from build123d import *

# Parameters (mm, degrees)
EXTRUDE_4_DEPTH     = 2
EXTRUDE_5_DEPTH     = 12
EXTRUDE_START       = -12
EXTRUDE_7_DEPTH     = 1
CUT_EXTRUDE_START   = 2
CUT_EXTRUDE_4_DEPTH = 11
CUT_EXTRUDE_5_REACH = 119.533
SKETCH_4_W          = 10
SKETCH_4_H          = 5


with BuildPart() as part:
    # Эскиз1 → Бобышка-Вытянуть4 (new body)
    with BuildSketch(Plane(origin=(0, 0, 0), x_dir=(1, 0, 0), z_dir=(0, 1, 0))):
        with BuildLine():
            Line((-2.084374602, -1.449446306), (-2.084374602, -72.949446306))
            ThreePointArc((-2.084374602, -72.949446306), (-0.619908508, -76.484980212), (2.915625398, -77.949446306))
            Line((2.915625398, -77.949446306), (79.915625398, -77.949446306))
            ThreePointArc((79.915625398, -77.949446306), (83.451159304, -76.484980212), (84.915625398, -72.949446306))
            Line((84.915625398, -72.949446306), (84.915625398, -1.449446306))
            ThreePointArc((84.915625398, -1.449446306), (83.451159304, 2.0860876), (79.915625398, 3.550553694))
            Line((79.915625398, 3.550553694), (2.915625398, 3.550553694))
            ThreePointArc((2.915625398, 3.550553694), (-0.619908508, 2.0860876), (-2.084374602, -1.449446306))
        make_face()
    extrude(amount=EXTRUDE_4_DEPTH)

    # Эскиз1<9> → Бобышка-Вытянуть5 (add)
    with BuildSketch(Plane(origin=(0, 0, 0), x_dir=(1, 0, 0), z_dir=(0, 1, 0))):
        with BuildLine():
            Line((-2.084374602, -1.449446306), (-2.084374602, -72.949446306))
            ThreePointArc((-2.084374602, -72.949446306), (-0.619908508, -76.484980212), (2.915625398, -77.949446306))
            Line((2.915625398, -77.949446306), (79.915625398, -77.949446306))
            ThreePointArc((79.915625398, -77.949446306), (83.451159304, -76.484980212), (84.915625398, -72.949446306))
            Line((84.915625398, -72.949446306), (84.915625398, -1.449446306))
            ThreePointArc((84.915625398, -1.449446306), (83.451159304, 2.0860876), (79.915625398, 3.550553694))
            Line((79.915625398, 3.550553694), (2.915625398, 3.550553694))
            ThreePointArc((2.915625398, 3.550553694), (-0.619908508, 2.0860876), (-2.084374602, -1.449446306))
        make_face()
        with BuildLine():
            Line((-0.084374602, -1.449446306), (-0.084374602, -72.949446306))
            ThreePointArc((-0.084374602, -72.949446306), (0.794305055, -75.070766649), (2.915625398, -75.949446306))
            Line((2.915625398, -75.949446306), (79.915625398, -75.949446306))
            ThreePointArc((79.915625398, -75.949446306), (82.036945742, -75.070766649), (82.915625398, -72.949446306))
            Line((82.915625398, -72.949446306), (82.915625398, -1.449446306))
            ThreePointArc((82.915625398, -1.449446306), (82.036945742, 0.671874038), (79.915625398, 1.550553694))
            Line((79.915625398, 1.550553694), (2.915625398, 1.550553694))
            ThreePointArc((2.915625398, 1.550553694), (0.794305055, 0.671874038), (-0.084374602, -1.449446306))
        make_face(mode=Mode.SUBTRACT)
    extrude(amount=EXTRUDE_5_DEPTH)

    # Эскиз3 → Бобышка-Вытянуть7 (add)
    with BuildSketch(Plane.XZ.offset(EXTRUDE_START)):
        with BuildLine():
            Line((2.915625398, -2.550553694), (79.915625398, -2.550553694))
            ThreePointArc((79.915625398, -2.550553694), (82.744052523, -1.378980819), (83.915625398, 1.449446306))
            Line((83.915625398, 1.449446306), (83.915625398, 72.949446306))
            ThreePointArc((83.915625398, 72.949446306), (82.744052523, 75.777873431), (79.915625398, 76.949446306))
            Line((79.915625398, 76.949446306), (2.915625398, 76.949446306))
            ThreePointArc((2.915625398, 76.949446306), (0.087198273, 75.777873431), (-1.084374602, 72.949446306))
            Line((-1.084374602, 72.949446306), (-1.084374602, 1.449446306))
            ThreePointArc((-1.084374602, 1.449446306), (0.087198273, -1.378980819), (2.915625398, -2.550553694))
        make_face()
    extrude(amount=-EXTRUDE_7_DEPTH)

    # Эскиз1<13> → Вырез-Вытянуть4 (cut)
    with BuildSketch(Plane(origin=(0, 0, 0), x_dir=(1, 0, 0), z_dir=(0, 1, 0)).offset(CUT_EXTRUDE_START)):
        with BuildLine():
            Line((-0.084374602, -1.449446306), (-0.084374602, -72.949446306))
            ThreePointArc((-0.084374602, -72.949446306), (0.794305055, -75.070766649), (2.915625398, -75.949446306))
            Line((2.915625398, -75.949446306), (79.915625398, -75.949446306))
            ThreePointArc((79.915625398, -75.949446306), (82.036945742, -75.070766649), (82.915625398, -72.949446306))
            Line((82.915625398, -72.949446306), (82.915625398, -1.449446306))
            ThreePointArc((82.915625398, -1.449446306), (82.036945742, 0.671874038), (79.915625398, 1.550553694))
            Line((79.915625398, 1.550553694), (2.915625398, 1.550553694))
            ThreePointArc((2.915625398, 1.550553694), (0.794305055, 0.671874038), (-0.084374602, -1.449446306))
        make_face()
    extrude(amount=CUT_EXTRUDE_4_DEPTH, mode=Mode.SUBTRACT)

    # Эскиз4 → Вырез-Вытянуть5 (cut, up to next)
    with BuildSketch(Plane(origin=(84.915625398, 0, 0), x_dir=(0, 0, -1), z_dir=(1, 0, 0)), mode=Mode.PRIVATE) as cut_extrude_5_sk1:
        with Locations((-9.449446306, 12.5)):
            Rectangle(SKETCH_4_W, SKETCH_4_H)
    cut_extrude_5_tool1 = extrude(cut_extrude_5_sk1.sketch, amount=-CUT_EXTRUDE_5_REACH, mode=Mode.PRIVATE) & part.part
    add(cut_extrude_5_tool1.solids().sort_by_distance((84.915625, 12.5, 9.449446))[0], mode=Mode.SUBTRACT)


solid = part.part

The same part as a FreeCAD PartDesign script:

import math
import FreeCAD as App
import Part
import Sketcher
from FreeCAD import Vector


def add_polygon(sketch, points):
    """Adds a closed chain of lines whose ends are joined by coincident constraints."""
    first, n = sketch.GeometryCount, len(points)
    for a, b in zip(points, points[1:] + points[:1]):
        sketch.addGeometry(Part.LineSegment(App.Vector(*a, 0), App.Vector(*b, 0)), False)
    for i in range(n):
        sketch.addConstraint(Sketcher.Constraint("Coincident", first + i, 2, first + (i + 1) % n, 1))

doc = App.newDocument("Part")
params = doc.addObject("Spreadsheet::Sheet", "Params")
for row, (alias, value) in enumerate([
    ("sketch1_radius", "5 mm"),
    ("sketch1_width", "77 mm"),
    ("sketch1_height", "71.5 mm"),
    ("pad1_length", "2 mm"),
    ("sketch2_radius", "5 mm"),
    ("sketch2_radius2", "3 mm"),
    ("sketch2_width", "77 mm"),
    ("sketch2_height", "71.5 mm"),
    ("pad2_length", "12 mm"),
    ("sketch3_radius", "4 mm"),
    ("sketch3_width", "77 mm"),
    ("sketch3_height", "71.5 mm"),
    ("pad3_length", "1 mm"),
    ("sketch4_radius", "3 mm"),
    ("sketch4_width", "77 mm"),
    ("sketch4_height", "71.5 mm"),
    ("pocket1_length", "11 mm"),
    ("sketch5_width", "5 mm"),
    ("sketch5_height", "10 mm"),
    ("pocket2_length", "2 mm"),
], start=1):
    params.set(f"A{row}", alias)
    params.set(f"B{row}", "=" + value)
    params.setAlias(f"B{row}", alias)

body = doc.addObject("PartDesign::Body", "Body")

sketch1 = body.newObject("Sketcher::SketchObject", "Sketch")
sketch1.AttachmentSupport = (doc.getObject("XZ_Plane"), [""])
sketch1.MapMode = "FlatFace"
sketch1.addGeometry([
    Part.LineSegment(Vector(-2.084375, 1.449446, 0), Vector(-2.084375, 72.949446, 0)),
    Part.ArcOfCircle(Part.Circle(Vector(2.915625, 72.949446, 0), Vector(0, 0, 1), 5), math.radians(90), math.radians(180)),
    Part.LineSegment(Vector(2.915625, 77.949446, 0), Vector(79.915625, 77.949446, 0)),
    Part.ArcOfCircle(Part.Circle(Vector(79.915625, 72.949446, 0), Vector(0, 0, 1), 5), math.radians(0), math.radians(90)),
    Part.LineSegment(Vector(84.915625, 72.949446, 0), Vector(84.915625, 1.449446, 0)),
    Part.ArcOfCircle(Part.Circle(Vector(79.915625, 1.449446, 0), Vector(0, 0, 1), 5), math.radians(-90), math.radians(0)),
    Part.LineSegment(Vector(79.915625, -3.550554, 0), Vector(2.915625, -3.550554, 0)),
    Part.ArcOfCircle(Part.Circle(Vector(2.915625, 1.449446, 0), Vector(0, 0, 1), 5), math.radians(180), math.radians(270)),
], False)
sketch1.addConstraint([
    Sketcher.Constraint("Tangent", 0, 2, 1, 2),
    Sketcher.Constraint("Tangent", 1, 1, 2, 1),
    Sketcher.Constraint("Tangent", 2, 2, 3, 2),
    Sketcher.Constraint("Tangent", 3, 1, 4, 1),
    Sketcher.Constraint("Tangent", 4, 2, 5, 2),
    Sketcher.Constraint("Tangent", 5, 1, 6, 1),
    Sketcher.Constraint("Tangent", 6, 2, 7, 2),
    Sketcher.Constraint("Tangent", 7, 1, 0, 1),
    Sketcher.Constraint("Vertical", 0),
    Sketcher.Constraint("Horizontal", 2),
    Sketcher.Constraint("Vertical", 4),
    Sketcher.Constraint("Horizontal", 6),
    Sketcher.Constraint("Equal", 1, 3),
    Sketcher.Constraint("Equal", 3, 5),
    Sketcher.Constraint("Equal", 5, 7),
    Sketcher.Constraint("Radius", 1, 5.0),
    Sketcher.Constraint("DistanceX", 2, 1, 2, 2, 77.0),
    Sketcher.Constraint("DistanceY", 0, 1, 0, 2, 71.5),
    Sketcher.Constraint("DistanceX", -1, 1, 1, 3, 2.915625),
    Sketcher.Constraint("DistanceY", -1, 1, 1, 3, 72.949446),
])
sketch1.setExpression("Constraints[15]", "Params.sketch1_radius")
sketch1.setExpression("Constraints[16]", "Params.sketch1_width")
sketch1.setExpression("Constraints[17]", "Params.sketch1_height")
pad1 = body.newObject("PartDesign::Pad", "Pad")
pad1.Profile = sketch1
pad1.setExpression("Length", "Params.pad1_length")
pad1.Reversed = True

sketch2 = body.newObject("Sketcher::SketchObject", "Sketch001")
sketch2.AttachmentSupport = (doc.getObject("XZ_Plane"), [""])
sketch2.MapMode = "FlatFace"
sketch2.addGeometry([
    Part.LineSegment(Vector(-2.084375, 1.449446, 0), Vector(-2.084375, 72.949446, 0)),
    Part.ArcOfCircle(Part.Circle(Vector(2.915625, 72.949446, 0), Vector(0, 0, 1), 5), math.radians(90), math.radians(180)),
    Part.LineSegment(Vector(2.915625, 77.949446, 0), Vector(79.915625, 77.949446, 0)),
    Part.ArcOfCircle(Part.Circle(Vector(79.915625, 72.949446, 0), Vector(0, 0, 1), 5), math.radians(0), math.radians(90)),
    Part.LineSegment(Vector(84.915625, 72.949446, 0), Vector(84.915625, 1.449446, 0)),
    Part.ArcOfCircle(Part.Circle(Vector(79.915625, 1.449446, 0), Vector(0, 0, 1), 5), math.radians(-90), math.radians(0)),
    Part.LineSegment(Vector(79.915625, -3.550554, 0), Vector(2.915625, -3.550554, 0)),
    Part.ArcOfCircle(Part.Circle(Vector(2.915625, 1.449446, 0), Vector(0, 0, 1), 5), math.radians(180), math.radians(270)),
    Part.LineSegment(Vector(-0.084375, 72.949446, 0), Vector(-0.084375, 1.449446, 0)),
    Part.ArcOfCircle(Part.Circle(Vector(2.915625, 1.449446, 0), Vector(0, 0, 1), 3), math.radians(180), math.radians(270)),
    Part.LineSegment(Vector(2.915625, -1.550554, 0), Vector(79.915625, -1.550554, 0)),
    Part.ArcOfCircle(Part.Circle(Vector(79.915625, 1.449446, 0), Vector(0, 0, 1), 3), math.radians(-90), math.radians(0)),
    Part.LineSegment(Vector(82.915625, 1.449446, 0), Vector(82.915625, 72.949446, 0)),
    Part.ArcOfCircle(Part.Circle(Vector(79.915625, 72.949446, 0), Vector(0, 0, 1), 3), math.radians(0), math.radians(90)),
    Part.LineSegment(Vector(79.915625, 75.949446, 0), Vector(2.915625, 75.949446, 0)),
    Part.ArcOfCircle(Part.Circle(Vector(2.915625, 72.949446, 0), Vector(0, 0, 1), 3), math.radians(90), math.radians(180)),
], False)
sketch2.addConstraint([
    Sketcher.Constraint("Tangent", 0, 2, 1, 2),
    Sketcher.Constraint("Tangent", 1, 1, 2, 1),
    Sketcher.Constraint("Tangent", 2, 2, 3, 2),
    Sketcher.Constraint("Tangent", 3, 1, 4, 1),
    Sketcher.Constraint("Tangent", 4, 2, 5, 2),
    Sketcher.Constraint("Tangent", 5, 1, 6, 1),
    Sketcher.Constraint("Tangent", 6, 2, 7, 2),
    Sketcher.Constraint("Tangent", 7, 1, 0, 1),
    Sketcher.Constraint("Tangent", 8, 2, 9, 1),
    Sketcher.Constraint("Tangent", 9, 2, 10, 1),
    Sketcher.Constraint("Tangent", 10, 2, 11, 1),
    Sketcher.Constraint("Tangent", 11, 2, 12, 1),
    Sketcher.Constraint("Tangent", 12, 2, 13, 1),
    Sketcher.Constraint("Tangent", 13, 2, 14, 1),
    Sketcher.Constraint("Tangent", 14, 2, 15, 1),
    Sketcher.Constraint("Tangent", 15, 2, 8, 1),
    Sketcher.Constraint("Vertical", 0),
    Sketcher.Constraint("Horizontal", 2),
    Sketcher.Constraint("Vertical", 4),
    Sketcher.Constraint("Horizontal", 6),
    Sketcher.Constraint("Vertical", 8),
    Sketcher.Constraint("Horizontal", 10),
    Sketcher.Constraint("Vertical", 12),
    Sketcher.Constraint("Horizontal", 14),
    Sketcher.Constraint("Coincident", 9, 3, 7, 3),
    Sketcher.Constraint("Coincident", 11, 3, 5, 3),
    Sketcher.Constraint("Coincident", 13, 3, 3, 3),
    Sketcher.Constraint("Equal", 1, 3),
    Sketcher.Constraint("Equal", 3, 5),
    Sketcher.Constraint("Equal", 5, 7),
    Sketcher.Constraint("Equal", 13, 15),
    Sketcher.Constraint("Radius", 1, 5.0),
    Sketcher.Constraint("Radius", 9, 3.0),
    Sketcher.Constraint("DistanceX", 2, 1, 2, 2, 77.0),
    Sketcher.Constraint("DistanceY", 0, 1, 0, 2, 71.5),
    Sketcher.Constraint("DistanceX", -1, 1, 1, 3, 2.915625),
    Sketcher.Constraint("DistanceY", -1, 1, 1, 3, 72.949446),
])
sketch2.setExpression("Constraints[31]", "Params.sketch2_radius")
sketch2.setExpression("Constraints[32]", "Params.sketch2_radius2")
sketch2.setExpression("Constraints[33]", "Params.sketch2_width")
sketch2.setExpression("Constraints[34]", "Params.sketch2_height")
pad2 = body.newObject("PartDesign::Pad", "Pad001")
pad2.Profile = sketch2
pad2.setExpression("Length", "Params.pad2_length")
pad2.Reversed = True

sketch3 = body.newObject("Sketcher::SketchObject", "Sketch002")
sketch3.AttachmentSupport = (doc.getObject("XZ_Plane"), [""])
sketch3.MapMode = "FlatFace"
sketch3.AttachmentOffset = App.Placement(Vector(0, 0, -12), App.Rotation())
sketch3.addGeometry([
    Part.LineSegment(Vector(2.915625, -2.550554, 0), Vector(79.915625, -2.550554, 0)),
    Part.ArcOfCircle(Part.Circle(Vector(79.915625, 1.449446, 0), Vector(0, 0, 1), 4), math.radians(-90), math.radians(0)),
    Part.LineSegment(Vector(83.915625, 1.449446, 0), Vector(83.915625, 72.949446, 0)),
    Part.ArcOfCircle(Part.Circle(Vector(79.915625, 72.949446, 0), Vector(0, 0, 1), 4), math.radians(0), math.radians(90)),
    Part.LineSegment(Vector(79.915625, 76.949446, 0), Vector(2.915625, 76.949446, 0)),
    Part.ArcOfCircle(Part.Circle(Vector(2.915625, 72.949446, 0), Vector(0, 0, 1), 4), math.radians(90), math.radians(180)),
    Part.LineSegment(Vector(-1.084375, 72.949446, 0), Vector(-1.084375, 1.449446, 0)),
    Part.ArcOfCircle(Part.Circle(Vector(2.915625, 1.449446, 0), Vector(0, 0, 1), 4), math.radians(180), math.radians(270)),
], False)
sketch3.addConstraint([
    Sketcher.Constraint("Tangent", 0, 2, 1, 1),
    Sketcher.Constraint("Tangent", 1, 2, 2, 1),
    Sketcher.Constraint("Tangent", 2, 2, 3, 1),
    Sketcher.Constraint("Tangent", 3, 2, 4, 1),
    Sketcher.Constraint("Tangent", 4, 2, 5, 1),
    Sketcher.Constraint("Tangent", 5, 2, 6, 1),
    Sketcher.Constraint("Tangent", 6, 2, 7, 1),
    Sketcher.Constraint("Tangent", 7, 2, 0, 1),
    Sketcher.Constraint("Horizontal", 0),
    Sketcher.Constraint("Vertical", 2),
    Sketcher.Constraint("Horizontal", 4),
    Sketcher.Constraint("Vertical", 6),
    Sketcher.Constraint("Equal", 1, 3),
    Sketcher.Constraint("Equal", 3, 5),
    Sketcher.Constraint("Equal", 5, 7),
    Sketcher.Constraint("Radius", 1, 4.0),
    Sketcher.Constraint("DistanceX", 0, 1, 0, 2, 77.0),
    Sketcher.Constraint("DistanceY", 2, 1, 2, 2, 71.5),
    Sketcher.Constraint("DistanceX", -1, 1, 1, 3, 79.915625),
    Sketcher.Constraint("DistanceY", -1, 1, 1, 3, 1.449446),
])
sketch3.setExpression("Constraints[15]", "Params.sketch3_radius")
sketch3.setExpression("Constraints[16]", "Params.sketch3_width")
sketch3.setExpression("Constraints[17]", "Params.sketch3_height")
pad3 = body.newObject("PartDesign::Pad", "Pad002")
pad3.Profile = sketch3
pad3.setExpression("Length", "Params.pad3_length")
pad3.Reversed = True

sketch4 = body.newObject("Sketcher::SketchObject", "Sketch003")
sketch4.AttachmentSupport = (doc.getObject("XZ_Plane"), [""])
sketch4.MapMode = "FlatFace"
sketch4.AttachmentOffset = App.Placement(Vector(0, 0, -2), App.Rotation())
sketch4.addGeometry([
    Part.LineSegment(Vector(-0.084375, 1.449446, 0), Vector(-0.084375, 72.949446, 0)),
    Part.ArcOfCircle(Part.Circle(Vector(2.915625, 72.949446, 0), Vector(0, 0, 1), 3), math.radians(90), math.radians(180)),
    Part.LineSegment(Vector(2.915625, 75.949446, 0), Vector(79.915625, 75.949446, 0)),
    Part.ArcOfCircle(Part.Circle(Vector(79.915625, 72.949446, 0), Vector(0, 0, 1), 3), math.radians(0), math.radians(90)),
    Part.LineSegment(Vector(82.915625, 72.949446, 0), Vector(82.915625, 1.449446, 0)),
    Part.ArcOfCircle(Part.Circle(Vector(79.915625, 1.449446, 0), Vector(0, 0, 1), 3), math.radians(-90), math.radians(0)),
    Part.LineSegment(Vector(79.915625, -1.550554, 0), Vector(2.915625, -1.550554, 0)),
    Part.ArcOfCircle(Part.Circle(Vector(2.915625, 1.449446, 0), Vector(0, 0, 1), 3), math.radians(180), math.radians(270)),
], False)
sketch4.addConstraint([
    Sketcher.Constraint("Tangent", 0, 2, 1, 2),
    Sketcher.Constraint("Tangent", 1, 1, 2, 1),
    Sketcher.Constraint("Tangent", 2, 2, 3, 2),
    Sketcher.Constraint("Tangent", 3, 1, 4, 1),
    Sketcher.Constraint("Tangent", 4, 2, 5, 2),
    Sketcher.Constraint("Tangent", 5, 1, 6, 1),
    Sketcher.Constraint("Tangent", 6, 2, 7, 2),
    Sketcher.Constraint("Tangent", 7, 1, 0, 1),
    Sketcher.Constraint("Vertical", 0),
    Sketcher.Constraint("Horizontal", 2),
    Sketcher.Constraint("Vertical", 4),
    Sketcher.Constraint("Horizontal", 6),
    Sketcher.Constraint("Equal", 1, 3),
    Sketcher.Constraint("Equal", 3, 5),
    Sketcher.Constraint("Equal", 5, 7),
    Sketcher.Constraint("Radius", 1, 3.0),
    Sketcher.Constraint("DistanceX", 2, 1, 2, 2, 77.0),
    Sketcher.Constraint("DistanceY", 0, 1, 0, 2, 71.5),
    Sketcher.Constraint("DistanceX", -1, 1, 1, 3, 2.915625),
    Sketcher.Constraint("DistanceY", -1, 1, 1, 3, 72.949446),
])
sketch4.setExpression("Constraints[15]", "Params.sketch4_radius")
sketch4.setExpression("Constraints[16]", "Params.sketch4_width")
sketch4.setExpression("Constraints[17]", "Params.sketch4_height")
pocket1 = body.newObject("PartDesign::Pocket", "Pocket")
pocket1.Profile = sketch4
pocket1.setExpression("Length", "Params.pocket1_length")

sketch5 = body.newObject("Sketcher::SketchObject", "Sketch004")
sketch5.AttachmentSupport = (doc.getObject("YZ_Plane"), [""])
sketch5.MapMode = "FlatFace"
sketch5.AttachmentOffset = App.Placement(Vector(0, 0, 84.915625), App.Rotation())
add_polygon(sketch5, [(15, 14.449446), (10, 14.449446), (10, 4.449446), (15, 4.449446)])
sketch5.addConstraint([
    Sketcher.Constraint("Horizontal", 0),
    Sketcher.Constraint("Vertical", 1),
    Sketcher.Constraint("Horizontal", 2),
    Sketcher.Constraint("Vertical", 3),
    Sketcher.Constraint("DistanceX", 0, 2, 0, 1, 5.0),
    Sketcher.Constraint("DistanceY", 1, 2, 1, 1, 10.0),
    Sketcher.Constraint("DistanceX", -1, 1, 0, 2, 10.0),
    Sketcher.Constraint("DistanceY", -1, 1, 0, 2, 14.449446),
])
sketch5.setExpression("Constraints[8]", "Params.sketch5_width")
sketch5.setExpression("Constraints[9]", "Params.sketch5_height")
pocket2 = body.newObject("PartDesign::Pocket", "Pocket001")
pocket2.Profile = sketch5
pocket2.setExpression("Length", "Params.pocket2_length")

doc.recompute()
